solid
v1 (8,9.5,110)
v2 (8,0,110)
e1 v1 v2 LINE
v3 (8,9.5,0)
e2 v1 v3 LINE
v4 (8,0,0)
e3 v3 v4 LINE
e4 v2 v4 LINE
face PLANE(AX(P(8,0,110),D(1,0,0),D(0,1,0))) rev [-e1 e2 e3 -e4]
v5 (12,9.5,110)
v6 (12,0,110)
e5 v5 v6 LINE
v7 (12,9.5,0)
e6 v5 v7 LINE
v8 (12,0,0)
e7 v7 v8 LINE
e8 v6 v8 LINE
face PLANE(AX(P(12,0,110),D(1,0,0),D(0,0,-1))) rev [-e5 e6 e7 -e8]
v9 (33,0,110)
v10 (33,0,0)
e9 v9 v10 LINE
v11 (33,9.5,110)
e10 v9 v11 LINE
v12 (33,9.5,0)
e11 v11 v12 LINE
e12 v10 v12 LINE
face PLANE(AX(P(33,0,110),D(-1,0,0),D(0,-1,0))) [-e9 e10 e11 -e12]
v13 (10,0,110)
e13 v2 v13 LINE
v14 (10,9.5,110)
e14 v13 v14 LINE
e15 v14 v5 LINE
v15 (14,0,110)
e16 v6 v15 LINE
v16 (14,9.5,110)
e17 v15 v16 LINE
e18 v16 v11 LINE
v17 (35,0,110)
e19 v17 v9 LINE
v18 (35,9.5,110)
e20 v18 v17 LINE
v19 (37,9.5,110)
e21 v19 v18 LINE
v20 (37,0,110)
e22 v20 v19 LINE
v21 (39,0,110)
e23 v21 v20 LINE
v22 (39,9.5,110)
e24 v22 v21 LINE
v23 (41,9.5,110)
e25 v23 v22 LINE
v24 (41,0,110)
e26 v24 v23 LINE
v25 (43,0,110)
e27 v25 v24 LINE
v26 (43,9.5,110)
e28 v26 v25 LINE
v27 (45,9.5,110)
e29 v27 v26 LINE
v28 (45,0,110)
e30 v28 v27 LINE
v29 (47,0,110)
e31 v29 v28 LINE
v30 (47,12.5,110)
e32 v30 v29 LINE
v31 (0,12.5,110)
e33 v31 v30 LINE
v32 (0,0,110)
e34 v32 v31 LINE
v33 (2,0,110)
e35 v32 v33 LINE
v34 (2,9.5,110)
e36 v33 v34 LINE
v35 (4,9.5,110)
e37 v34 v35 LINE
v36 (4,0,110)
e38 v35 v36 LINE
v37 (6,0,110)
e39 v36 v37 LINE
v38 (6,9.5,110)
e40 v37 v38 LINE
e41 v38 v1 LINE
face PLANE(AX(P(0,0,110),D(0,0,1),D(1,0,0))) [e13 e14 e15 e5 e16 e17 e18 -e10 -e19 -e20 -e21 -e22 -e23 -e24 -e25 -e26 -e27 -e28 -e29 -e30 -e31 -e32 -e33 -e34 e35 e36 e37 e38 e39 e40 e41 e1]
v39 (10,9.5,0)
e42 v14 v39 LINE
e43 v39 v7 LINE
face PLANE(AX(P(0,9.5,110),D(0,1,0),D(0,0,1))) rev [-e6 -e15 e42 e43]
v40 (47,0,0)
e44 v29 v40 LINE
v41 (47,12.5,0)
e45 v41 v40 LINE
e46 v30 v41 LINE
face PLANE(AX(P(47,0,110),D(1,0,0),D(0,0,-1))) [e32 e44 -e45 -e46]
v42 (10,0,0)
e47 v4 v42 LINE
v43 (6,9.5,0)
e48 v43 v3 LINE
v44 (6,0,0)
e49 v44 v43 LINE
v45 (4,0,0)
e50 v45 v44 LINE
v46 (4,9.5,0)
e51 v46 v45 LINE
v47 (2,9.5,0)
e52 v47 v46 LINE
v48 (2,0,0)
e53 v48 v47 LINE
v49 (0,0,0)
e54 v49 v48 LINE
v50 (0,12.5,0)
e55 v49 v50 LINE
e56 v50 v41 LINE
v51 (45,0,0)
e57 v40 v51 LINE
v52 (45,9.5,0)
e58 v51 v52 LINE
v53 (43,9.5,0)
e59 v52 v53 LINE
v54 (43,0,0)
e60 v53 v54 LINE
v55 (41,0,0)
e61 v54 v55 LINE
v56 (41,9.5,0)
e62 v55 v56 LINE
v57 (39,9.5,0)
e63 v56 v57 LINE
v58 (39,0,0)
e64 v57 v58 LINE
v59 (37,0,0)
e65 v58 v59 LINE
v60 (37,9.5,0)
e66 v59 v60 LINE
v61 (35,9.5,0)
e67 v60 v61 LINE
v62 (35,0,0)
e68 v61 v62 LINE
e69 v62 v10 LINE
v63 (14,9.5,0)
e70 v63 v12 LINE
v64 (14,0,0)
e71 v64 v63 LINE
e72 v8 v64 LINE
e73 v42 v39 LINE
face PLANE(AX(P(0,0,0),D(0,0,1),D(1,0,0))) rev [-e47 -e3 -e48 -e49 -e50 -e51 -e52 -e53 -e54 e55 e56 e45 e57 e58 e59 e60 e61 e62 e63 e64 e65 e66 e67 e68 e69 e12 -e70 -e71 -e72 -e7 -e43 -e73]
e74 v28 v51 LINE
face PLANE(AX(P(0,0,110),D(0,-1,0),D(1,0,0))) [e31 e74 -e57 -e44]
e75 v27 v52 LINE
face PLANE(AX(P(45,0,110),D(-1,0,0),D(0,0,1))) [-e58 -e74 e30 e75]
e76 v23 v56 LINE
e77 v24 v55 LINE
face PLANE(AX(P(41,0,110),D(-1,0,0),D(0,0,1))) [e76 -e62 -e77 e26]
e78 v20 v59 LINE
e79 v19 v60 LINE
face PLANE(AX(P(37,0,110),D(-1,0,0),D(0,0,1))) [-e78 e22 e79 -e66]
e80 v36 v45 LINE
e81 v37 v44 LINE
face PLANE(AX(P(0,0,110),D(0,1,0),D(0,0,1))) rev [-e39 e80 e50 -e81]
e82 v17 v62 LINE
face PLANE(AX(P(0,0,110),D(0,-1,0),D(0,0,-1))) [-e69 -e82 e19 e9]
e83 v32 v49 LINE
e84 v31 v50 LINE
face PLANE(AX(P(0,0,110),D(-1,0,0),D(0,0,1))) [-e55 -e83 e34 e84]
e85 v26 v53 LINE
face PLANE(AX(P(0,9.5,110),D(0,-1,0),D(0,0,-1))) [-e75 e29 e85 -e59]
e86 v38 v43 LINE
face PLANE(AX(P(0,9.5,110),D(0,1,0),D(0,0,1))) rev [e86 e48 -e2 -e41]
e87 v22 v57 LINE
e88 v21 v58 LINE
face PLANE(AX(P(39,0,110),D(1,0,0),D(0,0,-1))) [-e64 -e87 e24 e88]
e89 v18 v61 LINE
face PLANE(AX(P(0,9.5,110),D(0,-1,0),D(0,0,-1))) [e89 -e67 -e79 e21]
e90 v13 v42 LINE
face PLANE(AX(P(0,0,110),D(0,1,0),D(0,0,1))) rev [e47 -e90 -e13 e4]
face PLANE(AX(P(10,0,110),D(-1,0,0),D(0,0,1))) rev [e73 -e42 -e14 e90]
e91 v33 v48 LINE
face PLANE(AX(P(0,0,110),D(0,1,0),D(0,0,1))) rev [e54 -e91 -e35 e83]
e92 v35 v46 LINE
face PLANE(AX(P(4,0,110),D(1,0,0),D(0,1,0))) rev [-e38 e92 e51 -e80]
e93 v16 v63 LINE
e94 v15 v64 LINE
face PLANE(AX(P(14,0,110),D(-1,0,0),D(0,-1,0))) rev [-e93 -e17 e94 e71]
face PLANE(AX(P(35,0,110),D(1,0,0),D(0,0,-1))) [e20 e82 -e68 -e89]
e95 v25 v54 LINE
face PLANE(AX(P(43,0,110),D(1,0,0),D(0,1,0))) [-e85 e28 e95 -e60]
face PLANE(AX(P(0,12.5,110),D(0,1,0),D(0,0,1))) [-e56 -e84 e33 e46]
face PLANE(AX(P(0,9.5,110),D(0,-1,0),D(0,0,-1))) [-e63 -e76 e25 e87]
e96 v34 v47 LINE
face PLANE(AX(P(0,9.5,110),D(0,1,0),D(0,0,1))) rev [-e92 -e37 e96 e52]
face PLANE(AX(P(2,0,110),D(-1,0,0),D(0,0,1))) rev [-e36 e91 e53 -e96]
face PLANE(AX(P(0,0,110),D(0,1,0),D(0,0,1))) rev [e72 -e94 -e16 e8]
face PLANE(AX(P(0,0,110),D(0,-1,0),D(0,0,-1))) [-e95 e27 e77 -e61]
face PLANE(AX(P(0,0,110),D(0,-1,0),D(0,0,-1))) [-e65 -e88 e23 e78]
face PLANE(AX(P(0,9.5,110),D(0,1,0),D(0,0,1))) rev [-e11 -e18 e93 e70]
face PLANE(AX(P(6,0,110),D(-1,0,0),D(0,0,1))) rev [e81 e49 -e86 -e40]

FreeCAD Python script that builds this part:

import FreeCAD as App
import Part
import Sketcher
from FreeCAD import Vector
Q = App.Units.Quantity

doc = App.newDocument("Part")
body = doc.addObject("PartDesign::Body", "Body")

# Sketch on XY plane
sketch1 = doc.addObject("Sketcher::SketchObject", "Sketch")
body.addObject(sketch1)
sketch1.AttachmentSupport = (doc.XY_Plane, [""])
sketch1.MapMode = "FlatFace"
sketch1.addGeometry(Part.LineSegment(Vector(0, 12.5, 0), Vector(0, 0, 0)), False)
sketch1.addGeometry(Part.LineSegment(Vector(0, 0, 0), Vector(2, 0, 0)), False)
sketch1.addGeometry(Part.LineSegment(Vector(2, 0, 0), Vector(2, 9.5, 0)), False)
sketch1.addGeometry(Part.LineSegment(Vector(2, 9.5, 0), Vector(4, 9.5, 0)), False)
sketch1.addGeometry(Part.LineSegment(Vector(4, 9.5, 0), Vector(4, 0, 0)), False)
sketch1.addGeometry(Part.LineSegment(Vector(4, 0, 0), Vector(6, 0, 0)), False)
sketch1.addGeometry(Part.LineSegment(Vector(6, 0, 0), Vector(6, 9.5, 0)), False)
sketch1.addGeometry(Part.LineSegment(Vector(6, 9.5, 0), Vector(8, 9.5, 0)), False)
sketch1.addGeometry(Part.LineSegment(Vector(8, 9.5, 0), Vector(8, 0, 0)), False)
sketch1.addGeometry(Part.LineSegment(Vector(8, 0, 0), Vector(10, 0, 0)), False)
sketch1.addGeometry(Part.LineSegment(Vector(10, 0, 0), Vector(10, 9.5, 0)), False)
sketch1.addGeometry(Part.LineSegment(Vector(10, 9.5, 0), Vector(12, 9.5, 0)), False)
sketch1.addGeometry(Part.LineSegment(Vector(12, 9.5, 0), Vector(12, 0, 0)), False)
sketch1.addGeometry(Part.LineSegment(Vector(12, 0, 0), Vector(14, 0, 0)), False)
sketch1.addGeometry(Part.LineSegment(Vector(14, 0, 0), Vector(14, 9.5, 0)), False)
sketch1.addGeometry(Part.LineSegment(Vector(14, 9.5, 0), Vector(33, 9.5, 0)), False)
sketch1.addGeometry(Part.LineSegment(Vector(33, 9.5, 0), Vector(33, 0, 0)), False)
sketch1.addGeometry(Part.LineSegment(Vector(33, 0, 0), Vector(35, 0, 0)), False)
sketch1.addGeometry(Part.LineSegment(Vector(35, 0, 0), Vector(35, 9.5, 0)), False)
sketch1.addGeometry(Part.LineSegment(Vector(35, 9.5, 0), Vector(37, 9.5, 0)), False)
sketch1.addGeometry(Part.LineSegment(Vector(37, 9.5, 0), Vector(37, 0, 0)), False)
sketch1.addGeometry(Part.LineSegment(Vector(37, 0, 0), Vector(39, 0, 0)), False)
sketch1.addGeometry(Part.LineSegment(Vector(39, 0, 0), Vector(39, 9.5, 0)), False)
sketch1.addGeometry(Part.LineSegment(Vector(39, 9.5, 0), Vector(41, 9.5, 0)), False)
sketch1.addGeometry(Part.LineSegment(Vector(41, 9.5, 0), Vector(41, 0, 0)), False)
sketch1.addGeometry(Part.LineSegment(Vector(41, 0, 0), Vector(43, 0, 0)), False)
sketch1.addGeometry(Part.LineSegment(Vector(43, 0, 0), Vector(43, 9.5, 0)), False)
sketch1.addGeometry(Part.LineSegment(Vector(43, 9.5, 0), Vector(45, 9.5, 0)), False)
sketch1.addGeometry(Part.LineSegment(Vector(45, 9.5, 0), Vector(45, 0, 0)), False)
sketch1.addGeometry(Part.LineSegment(Vector(45, 0, 0), Vector(47, 0, 0)), False)
sketch1.addGeometry(Part.LineSegment(Vector(47, 0, 0), Vector(47, 12.5, 0)), False)
sketch1.addGeometry(Part.LineSegment(Vector(47, 12.5, 0), Vector(0, 12.5, 0)), False)
sketch1.addConstraint(Sketcher.Constraint("Coincident", 0, 2, 1, 1))
sketch1.addConstraint(Sketcher.Constraint("Coincident", 1, 2, 2, 1))
sketch1.addConstraint(Sketcher.Constraint("Coincident", 2, 2, 3, 1))
sketch1.addConstraint(Sketcher.Constraint("Coincident", 3, 2, 4, 1))
sketch1.addConstraint(Sketcher.Constraint("Coincident", 4, 2, 5, 1))
sketch1.addConstraint(Sketcher.Constraint("Coincident", 5, 2, 6, 1))
sketch1.addConstraint(Sketcher.Constraint("Coincident", 6, 2, 7, 1))
sketch1.addConstraint(Sketcher.Constraint("Coincident", 7, 2, 8, 1))
sketch1.addConstraint(Sketcher.Constraint("Coincident", 8, 2, 9, 1))
sketch1.addConstraint(Sketcher.Constraint("Coincident", 9, 2, 10, 1))
sketch1.addConstraint(Sketcher.Constraint("Coincident", 10, 2, 11, 1))
sketch1.addConstraint(Sketcher.Constraint("Coincident", 11, 2, 12, 1))
sketch1.addConstraint(Sketcher.Constraint("Coincident", 12, 2, 13, 1))
sketch1.addConstraint(Sketcher.Constraint("Coincident", 13, 2, 14, 1))
sketch1.addConstraint(Sketcher.Constraint("Coincident", 14, 2, 15, 1))
sketch1.addConstraint(Sketcher.Constraint("Coincident", 15, 2, 16, 1))
sketch1.addConstraint(Sketcher.Constraint("Coincident", 16, 2, 17, 1))
sketch1.addConstraint(Sketcher.Constraint("Coincident", 17, 2, 18, 1))
sketch1.addConstraint(Sketcher.Constraint("Coincident", 18, 2, 19, 1))
sketch1.addConstraint(Sketcher.Constraint("Coincident", 19, 2, 20, 1))
sketch1.addConstraint(Sketcher.Constraint("Coincident", 20, 2, 21, 1))
sketch1.addConstraint(Sketcher.Constraint("Coincident", 21, 2, 22, 1))
sketch1.addConstraint(Sketcher.Constraint("Coincident", 22, 2, 23, 1))
sketch1.addConstraint(Sketcher.Constraint("Coincident", 23, 2, 24, 1))
sketch1.addConstraint(Sketcher.Constraint("Coincident", 24, 2, 25, 1))
sketch1.addConstraint(Sketcher.Constraint("Coincident", 25, 2, 26, 1))
sketch1.addConstraint(Sketcher.Constraint("Coincident", 26, 2, 27, 1))
sketch1.addConstraint(Sketcher.Constraint("Coincident", 27, 2, 28, 1))
sketch1.addConstraint(Sketcher.Constraint("Coincident", 28, 2, 29, 1))
sketch1.addConstraint(Sketcher.Constraint("Coincident", 29, 2, 30, 1))
sketch1.addConstraint(Sketcher.Constraint("Coincident", 30, 2, 31, 1))
sketch1.addConstraint(Sketcher.Constraint("Coincident", 31, 2, 0, 1))
sketch1.addConstraint(Sketcher.Constraint("Vertical", 0))
sketch1.addConstraint(Sketcher.Constraint("Horizontal", 1))
sketch1.addConstraint(Sketcher.Constraint("Vertical", 2))
sketch1.addConstraint(Sketcher.Constraint("Horizontal", 3))
sketch1.addConstraint(Sketcher.Constraint("Vertical", 4))
sketch1.addConstraint(Sketcher.Constraint("Horizontal", 5))
sketch1.addConstraint(Sketcher.Constraint("Vertical", 6))
sketch1.addConstraint(Sketcher.Constraint("Horizontal", 7))
sketch1.addConstraint(Sketcher.Constraint("Vertical", 8))
sketch1.addConstraint(Sketcher.Constraint("Horizontal", 9))
sketch1.addConstraint(Sketcher.Constraint("Vertical", 10))
sketch1.addConstraint(Sketcher.Constraint("Horizontal", 11))
sketch1.addConstraint(Sketcher.Constraint("Vertical", 12))
sketch1.addConstraint(Sketcher.Constraint("Horizontal", 13))
sketch1.addConstraint(Sketcher.Constraint("Vertical", 14))
sketch1.addConstraint(Sketcher.Constraint("Horizontal", 15))
sketch1.addConstraint(Sketcher.Constraint("Vertical", 16))
sketch1.addConstraint(Sketcher.Constraint("Horizontal", 17))
sketch1.addConstraint(Sketcher.Constraint("Vertical", 18))
sketch1.addConstraint(Sketcher.Constraint("Horizontal", 19))
sketch1.addConstraint(Sketcher.Constraint("Vertical", 20))
sketch1.addConstraint(Sketcher.Constraint("Horizontal", 21))
sketch1.addConstraint(Sketcher.Constraint("Vertical", 22))
sketch1.addConstraint(Sketcher.Constraint("Horizontal", 23))
sketch1.addConstraint(Sketcher.Constraint("Vertical", 24))
sketch1.addConstraint(Sketcher.Constraint("Horizontal", 25))
sketch1.addConstraint(Sketcher.Constraint("Vertical", 26))
sketch1.addConstraint(Sketcher.Constraint("Horizontal", 27))
sketch1.addConstraint(Sketcher.Constraint("Vertical", 28))
sketch1.addConstraint(Sketcher.Constraint("Horizontal", 29))
sketch1.addConstraint(Sketcher.Constraint("Vertical", 30))
sketch1.addConstraint(Sketcher.Constraint("Horizontal", 31))
sketch1.addConstraint(Sketcher.Constraint("Coincident", 0, 2, -1, 1))
sketch1.addConstraint(Sketcher.Constraint("PointOnObject", 4, 2, -1))
sketch1.addConstraint(Sketcher.Constraint("PointOnObject", 8, 2, -1))
sketch1.addConstraint(Sketcher.Constraint("PointOnObject", 12, 2, -1))
sketch1.addConstraint(Sketcher.Constraint("PointOnObject", 16, 2, -1))
sketch1.addConstraint(Sketcher.Constraint("PointOnObject", 20, 2, -1))
sketch1.addConstraint(Sketcher.Constraint("PointOnObject", 24, 2, -1))
sketch1.addConstraint(Sketcher.Constraint("PointOnObject", 28, 2, -1))
sketch1.addConstraint(Sketcher.Constraint("Horizontal", 3, 2, 6, 2))
sketch1.addConstraint(Sketcher.Constraint("Horizontal", 7, 2, 10, 2))
sketch1.addConstraint(Sketcher.Constraint("Horizontal", 11, 2, 14, 2))
sketch1.addConstraint(Sketcher.Constraint("Horizontal", 15, 2, 18, 2))
sketch1.addConstraint(Sketcher.Constraint("Horizontal", 19, 2, 22, 2))
sketch1.addConstraint(Sketcher.Constraint("Horizontal", 23, 2, 26, 2))
sketch1.addConstraint(Sketcher.Constraint("Equal", 1, 3))
sketch1.addConstraint(Sketcher.Constraint("Equal", 3, 5))
sketch1.addConstraint(Sketcher.Constraint("Equal", 5, 7))
sketch1.addConstraint(Sketcher.Constraint("Equal", 7, 9))
sketch1.addConstraint(Sketcher.Constraint("Equal", 9, 11))
sketch1.addConstraint(Sketcher.Constraint("Equal", 11, 13))
sketch1.addConstraint(Sketcher.Constraint("Equal", 13, 17))
sketch1.addConstraint(Sketcher.Constraint("Equal", 17, 19))
sketch1.addConstraint(Sketcher.Constraint("Equal", 19, 21))
sketch1.addConstraint(Sketcher.Constraint("Equal", 21, 23))
sketch1.addConstraint(Sketcher.Constraint("Equal", 23, 25))
sketch1.addConstraint(Sketcher.Constraint("Equal", 25, 27))
sketch1.addConstraint(Sketcher.Constraint("Equal", 27, 29))
sketch1.addConstraint(Sketcher.Constraint("DistanceX", 1, 1, 1, 2, Q("2 mm")))
sketch1.addConstraint(Sketcher.Constraint("DistanceX", 15, 1, 15, 2, Q("19 mm")))
sketch1.addConstraint(Sketcher.Constraint("DistanceY", 0, 2, 0, 1, Q("12.5 mm")))
sketch1.addConstraint(Sketcher.Constraint("DistanceY", 2, 1, 2, 2, Q("9.5 mm")))
pad1 = doc.addObject("PartDesign::Pad", "Pad")
body.addObject(pad1)
pad1.Profile = sketch1
pad1.Length = 110

doc.recompute()
